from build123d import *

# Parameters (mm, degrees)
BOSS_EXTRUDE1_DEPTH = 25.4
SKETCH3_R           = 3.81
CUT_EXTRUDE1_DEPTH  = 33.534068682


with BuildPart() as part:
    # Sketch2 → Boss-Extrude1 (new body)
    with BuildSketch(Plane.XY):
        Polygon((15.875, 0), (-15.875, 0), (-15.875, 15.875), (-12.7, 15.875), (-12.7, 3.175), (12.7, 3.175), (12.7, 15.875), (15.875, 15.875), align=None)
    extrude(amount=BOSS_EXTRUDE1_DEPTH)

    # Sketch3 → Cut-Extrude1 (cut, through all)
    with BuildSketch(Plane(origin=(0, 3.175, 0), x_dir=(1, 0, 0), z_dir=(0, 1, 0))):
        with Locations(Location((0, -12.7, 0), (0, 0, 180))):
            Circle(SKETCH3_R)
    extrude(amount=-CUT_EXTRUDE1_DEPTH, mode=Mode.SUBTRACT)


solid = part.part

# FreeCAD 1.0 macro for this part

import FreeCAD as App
import Part
import Sketcher
from FreeCAD import Vector
Q = App.Units.Quantity


def add_polygon(sketch, points):
    """Adds a closed chain of lines whose ends are joined by coincident constraints."""
    first, n = sketch.GeometryCount, len(points)
    for a, b in zip(points, points[1:] + points[:1]):
        sketch.addGeometry(Part.LineSegment(App.Vector(*a, 0), App.Vector(*b, 0)), False)
    for i in range(n):
        sketch.addConstraint(Sketcher.Constraint("Coincident", first + i, 2, first + (i + 1) % n, 1))

doc = App.newDocument("Part")
params = doc.addObject("Spreadsheet::Sheet", "Params")
for row, (alias, value) in enumerate([
    ("sketch1_width", "1 in"),
    ("sketch1_height", "0.5 in"),
    ("sketch1_width2", "1.25 in"),
    ("sketch1_height2", "0.625 in"),
    ("pad1_length", "1 in"),
    ("sketch2_diameter", "0.3 in"),
], start=1):
    params.set(f"A{row}", alias)
    params.set(f"B{row}", "=" + value)
    params.setAlias(f"B{row}", alias)

body = doc.addObject("PartDesign::Body", "Body")

sketch1 = body.newObject("Sketcher::SketchObject", "Sketch")
sketch1.AttachmentSupport = (doc.getObject("XY_Plane"), [""])
sketch1.MapMode = "FlatFace"
add_polygon(sketch1, [(-15.9, 0), (15.9, 0), (15.9, 15.9), (12.7, 15.9), (12.7, 3.2), (-12.7, 3.2), (-12.7, 15.9), (-15.9, 15.9)])
sketch1.addConstraint(Sketcher.Constraint("Horizontal", 0))
sketch1.addConstraint(Sketcher.Constraint("Vertical", 1))
sketch1.addConstraint(Sketcher.Constraint("Horizontal", 2))
sketch1.addConstraint(Sketcher.Constraint("Vertical", 3))
sketch1.addConstraint(Sketcher.Constraint("Horizontal", 4))
sketch1.addConstraint(Sketcher.Constraint("Vertical", 5))
sketch1.addConstraint(Sketcher.Constraint("Horizontal", 6))
sketch1.addConstraint(Sketcher.Constraint("Vertical", 7))
sketch1.addConstraint(Sketcher.Constraint("Symmetric", 0, 2, 7, 2, -1, 1))
sketch1.addConstraint(Sketcher.Constraint("Symmetric", 2, 2, 5, 2, -2))
sketch1.addConstraint(Sketcher.Constraint("DistanceX", 4, 2, 4, 1, Q("1 in")))
sketch1.addConstraint(Sketcher.Constraint("DistanceY", 3, 2, 3, 1, Q("0.5 in")))
sketch1.addConstraint(Sketcher.Constraint("DistanceX", 0, 1, 0, 2, Q("1.25 in")))
sketch1.addConstraint(Sketcher.Constraint("DistanceY", 1, 1, 1, 2, Q("0.625 in")))
sketch1.setExpression("Constraints[18]", "Params.sketch1_width")
sketch1.setExpression("Constraints[19]", "Params.sketch1_height")
sketch1.setExpression("Constraints[20]", "Params.sketch1_width2")
sketch1.setExpression("Constraints[21]", "Params.sketch1_height2")
pad1 = body.newObject("PartDesign::Pad", "Pad")
pad1.Profile = sketch1
pad1.setExpression("Length", "Params.pad1_length")

sketch2 = body.newObject("Sketcher::SketchObject", "Sketch001")
sketch2.AttachmentSupport = (doc.getObject("XZ_Plane"), [""])
sketch2.MapMode = "FlatFace"
sketch2.AttachmentOffset = App.Placement(Vector(0, 0, -0.125 * 25.4), App.Rotation())
sketch2.addGeometry(Part.Circle(Vector(0, 12.7, 0), Vector(0, 0, 1), 3.8), False)
sketch2.addConstraint(Sketcher.Constraint("PointOnObject", 0, 3, -2))
sketch2.addConstraint(Sketcher.Constraint("Diameter", 0, Q("0.3 in")))
sketch2.addConstraint(Sketcher.Constraint("DistanceY", -1, 1, 0, 3, Q("0.5 in")))
sketch2.setExpression("Constraints[1]", "Params.sketch2_diameter")
pocket1 = body.newObject("PartDesign::Pocket", "Pocket")
pocket1.Profile = sketch2
pocket1.Type = "ThroughAll"
pocket1.Reversed = True

doc.recompute()
